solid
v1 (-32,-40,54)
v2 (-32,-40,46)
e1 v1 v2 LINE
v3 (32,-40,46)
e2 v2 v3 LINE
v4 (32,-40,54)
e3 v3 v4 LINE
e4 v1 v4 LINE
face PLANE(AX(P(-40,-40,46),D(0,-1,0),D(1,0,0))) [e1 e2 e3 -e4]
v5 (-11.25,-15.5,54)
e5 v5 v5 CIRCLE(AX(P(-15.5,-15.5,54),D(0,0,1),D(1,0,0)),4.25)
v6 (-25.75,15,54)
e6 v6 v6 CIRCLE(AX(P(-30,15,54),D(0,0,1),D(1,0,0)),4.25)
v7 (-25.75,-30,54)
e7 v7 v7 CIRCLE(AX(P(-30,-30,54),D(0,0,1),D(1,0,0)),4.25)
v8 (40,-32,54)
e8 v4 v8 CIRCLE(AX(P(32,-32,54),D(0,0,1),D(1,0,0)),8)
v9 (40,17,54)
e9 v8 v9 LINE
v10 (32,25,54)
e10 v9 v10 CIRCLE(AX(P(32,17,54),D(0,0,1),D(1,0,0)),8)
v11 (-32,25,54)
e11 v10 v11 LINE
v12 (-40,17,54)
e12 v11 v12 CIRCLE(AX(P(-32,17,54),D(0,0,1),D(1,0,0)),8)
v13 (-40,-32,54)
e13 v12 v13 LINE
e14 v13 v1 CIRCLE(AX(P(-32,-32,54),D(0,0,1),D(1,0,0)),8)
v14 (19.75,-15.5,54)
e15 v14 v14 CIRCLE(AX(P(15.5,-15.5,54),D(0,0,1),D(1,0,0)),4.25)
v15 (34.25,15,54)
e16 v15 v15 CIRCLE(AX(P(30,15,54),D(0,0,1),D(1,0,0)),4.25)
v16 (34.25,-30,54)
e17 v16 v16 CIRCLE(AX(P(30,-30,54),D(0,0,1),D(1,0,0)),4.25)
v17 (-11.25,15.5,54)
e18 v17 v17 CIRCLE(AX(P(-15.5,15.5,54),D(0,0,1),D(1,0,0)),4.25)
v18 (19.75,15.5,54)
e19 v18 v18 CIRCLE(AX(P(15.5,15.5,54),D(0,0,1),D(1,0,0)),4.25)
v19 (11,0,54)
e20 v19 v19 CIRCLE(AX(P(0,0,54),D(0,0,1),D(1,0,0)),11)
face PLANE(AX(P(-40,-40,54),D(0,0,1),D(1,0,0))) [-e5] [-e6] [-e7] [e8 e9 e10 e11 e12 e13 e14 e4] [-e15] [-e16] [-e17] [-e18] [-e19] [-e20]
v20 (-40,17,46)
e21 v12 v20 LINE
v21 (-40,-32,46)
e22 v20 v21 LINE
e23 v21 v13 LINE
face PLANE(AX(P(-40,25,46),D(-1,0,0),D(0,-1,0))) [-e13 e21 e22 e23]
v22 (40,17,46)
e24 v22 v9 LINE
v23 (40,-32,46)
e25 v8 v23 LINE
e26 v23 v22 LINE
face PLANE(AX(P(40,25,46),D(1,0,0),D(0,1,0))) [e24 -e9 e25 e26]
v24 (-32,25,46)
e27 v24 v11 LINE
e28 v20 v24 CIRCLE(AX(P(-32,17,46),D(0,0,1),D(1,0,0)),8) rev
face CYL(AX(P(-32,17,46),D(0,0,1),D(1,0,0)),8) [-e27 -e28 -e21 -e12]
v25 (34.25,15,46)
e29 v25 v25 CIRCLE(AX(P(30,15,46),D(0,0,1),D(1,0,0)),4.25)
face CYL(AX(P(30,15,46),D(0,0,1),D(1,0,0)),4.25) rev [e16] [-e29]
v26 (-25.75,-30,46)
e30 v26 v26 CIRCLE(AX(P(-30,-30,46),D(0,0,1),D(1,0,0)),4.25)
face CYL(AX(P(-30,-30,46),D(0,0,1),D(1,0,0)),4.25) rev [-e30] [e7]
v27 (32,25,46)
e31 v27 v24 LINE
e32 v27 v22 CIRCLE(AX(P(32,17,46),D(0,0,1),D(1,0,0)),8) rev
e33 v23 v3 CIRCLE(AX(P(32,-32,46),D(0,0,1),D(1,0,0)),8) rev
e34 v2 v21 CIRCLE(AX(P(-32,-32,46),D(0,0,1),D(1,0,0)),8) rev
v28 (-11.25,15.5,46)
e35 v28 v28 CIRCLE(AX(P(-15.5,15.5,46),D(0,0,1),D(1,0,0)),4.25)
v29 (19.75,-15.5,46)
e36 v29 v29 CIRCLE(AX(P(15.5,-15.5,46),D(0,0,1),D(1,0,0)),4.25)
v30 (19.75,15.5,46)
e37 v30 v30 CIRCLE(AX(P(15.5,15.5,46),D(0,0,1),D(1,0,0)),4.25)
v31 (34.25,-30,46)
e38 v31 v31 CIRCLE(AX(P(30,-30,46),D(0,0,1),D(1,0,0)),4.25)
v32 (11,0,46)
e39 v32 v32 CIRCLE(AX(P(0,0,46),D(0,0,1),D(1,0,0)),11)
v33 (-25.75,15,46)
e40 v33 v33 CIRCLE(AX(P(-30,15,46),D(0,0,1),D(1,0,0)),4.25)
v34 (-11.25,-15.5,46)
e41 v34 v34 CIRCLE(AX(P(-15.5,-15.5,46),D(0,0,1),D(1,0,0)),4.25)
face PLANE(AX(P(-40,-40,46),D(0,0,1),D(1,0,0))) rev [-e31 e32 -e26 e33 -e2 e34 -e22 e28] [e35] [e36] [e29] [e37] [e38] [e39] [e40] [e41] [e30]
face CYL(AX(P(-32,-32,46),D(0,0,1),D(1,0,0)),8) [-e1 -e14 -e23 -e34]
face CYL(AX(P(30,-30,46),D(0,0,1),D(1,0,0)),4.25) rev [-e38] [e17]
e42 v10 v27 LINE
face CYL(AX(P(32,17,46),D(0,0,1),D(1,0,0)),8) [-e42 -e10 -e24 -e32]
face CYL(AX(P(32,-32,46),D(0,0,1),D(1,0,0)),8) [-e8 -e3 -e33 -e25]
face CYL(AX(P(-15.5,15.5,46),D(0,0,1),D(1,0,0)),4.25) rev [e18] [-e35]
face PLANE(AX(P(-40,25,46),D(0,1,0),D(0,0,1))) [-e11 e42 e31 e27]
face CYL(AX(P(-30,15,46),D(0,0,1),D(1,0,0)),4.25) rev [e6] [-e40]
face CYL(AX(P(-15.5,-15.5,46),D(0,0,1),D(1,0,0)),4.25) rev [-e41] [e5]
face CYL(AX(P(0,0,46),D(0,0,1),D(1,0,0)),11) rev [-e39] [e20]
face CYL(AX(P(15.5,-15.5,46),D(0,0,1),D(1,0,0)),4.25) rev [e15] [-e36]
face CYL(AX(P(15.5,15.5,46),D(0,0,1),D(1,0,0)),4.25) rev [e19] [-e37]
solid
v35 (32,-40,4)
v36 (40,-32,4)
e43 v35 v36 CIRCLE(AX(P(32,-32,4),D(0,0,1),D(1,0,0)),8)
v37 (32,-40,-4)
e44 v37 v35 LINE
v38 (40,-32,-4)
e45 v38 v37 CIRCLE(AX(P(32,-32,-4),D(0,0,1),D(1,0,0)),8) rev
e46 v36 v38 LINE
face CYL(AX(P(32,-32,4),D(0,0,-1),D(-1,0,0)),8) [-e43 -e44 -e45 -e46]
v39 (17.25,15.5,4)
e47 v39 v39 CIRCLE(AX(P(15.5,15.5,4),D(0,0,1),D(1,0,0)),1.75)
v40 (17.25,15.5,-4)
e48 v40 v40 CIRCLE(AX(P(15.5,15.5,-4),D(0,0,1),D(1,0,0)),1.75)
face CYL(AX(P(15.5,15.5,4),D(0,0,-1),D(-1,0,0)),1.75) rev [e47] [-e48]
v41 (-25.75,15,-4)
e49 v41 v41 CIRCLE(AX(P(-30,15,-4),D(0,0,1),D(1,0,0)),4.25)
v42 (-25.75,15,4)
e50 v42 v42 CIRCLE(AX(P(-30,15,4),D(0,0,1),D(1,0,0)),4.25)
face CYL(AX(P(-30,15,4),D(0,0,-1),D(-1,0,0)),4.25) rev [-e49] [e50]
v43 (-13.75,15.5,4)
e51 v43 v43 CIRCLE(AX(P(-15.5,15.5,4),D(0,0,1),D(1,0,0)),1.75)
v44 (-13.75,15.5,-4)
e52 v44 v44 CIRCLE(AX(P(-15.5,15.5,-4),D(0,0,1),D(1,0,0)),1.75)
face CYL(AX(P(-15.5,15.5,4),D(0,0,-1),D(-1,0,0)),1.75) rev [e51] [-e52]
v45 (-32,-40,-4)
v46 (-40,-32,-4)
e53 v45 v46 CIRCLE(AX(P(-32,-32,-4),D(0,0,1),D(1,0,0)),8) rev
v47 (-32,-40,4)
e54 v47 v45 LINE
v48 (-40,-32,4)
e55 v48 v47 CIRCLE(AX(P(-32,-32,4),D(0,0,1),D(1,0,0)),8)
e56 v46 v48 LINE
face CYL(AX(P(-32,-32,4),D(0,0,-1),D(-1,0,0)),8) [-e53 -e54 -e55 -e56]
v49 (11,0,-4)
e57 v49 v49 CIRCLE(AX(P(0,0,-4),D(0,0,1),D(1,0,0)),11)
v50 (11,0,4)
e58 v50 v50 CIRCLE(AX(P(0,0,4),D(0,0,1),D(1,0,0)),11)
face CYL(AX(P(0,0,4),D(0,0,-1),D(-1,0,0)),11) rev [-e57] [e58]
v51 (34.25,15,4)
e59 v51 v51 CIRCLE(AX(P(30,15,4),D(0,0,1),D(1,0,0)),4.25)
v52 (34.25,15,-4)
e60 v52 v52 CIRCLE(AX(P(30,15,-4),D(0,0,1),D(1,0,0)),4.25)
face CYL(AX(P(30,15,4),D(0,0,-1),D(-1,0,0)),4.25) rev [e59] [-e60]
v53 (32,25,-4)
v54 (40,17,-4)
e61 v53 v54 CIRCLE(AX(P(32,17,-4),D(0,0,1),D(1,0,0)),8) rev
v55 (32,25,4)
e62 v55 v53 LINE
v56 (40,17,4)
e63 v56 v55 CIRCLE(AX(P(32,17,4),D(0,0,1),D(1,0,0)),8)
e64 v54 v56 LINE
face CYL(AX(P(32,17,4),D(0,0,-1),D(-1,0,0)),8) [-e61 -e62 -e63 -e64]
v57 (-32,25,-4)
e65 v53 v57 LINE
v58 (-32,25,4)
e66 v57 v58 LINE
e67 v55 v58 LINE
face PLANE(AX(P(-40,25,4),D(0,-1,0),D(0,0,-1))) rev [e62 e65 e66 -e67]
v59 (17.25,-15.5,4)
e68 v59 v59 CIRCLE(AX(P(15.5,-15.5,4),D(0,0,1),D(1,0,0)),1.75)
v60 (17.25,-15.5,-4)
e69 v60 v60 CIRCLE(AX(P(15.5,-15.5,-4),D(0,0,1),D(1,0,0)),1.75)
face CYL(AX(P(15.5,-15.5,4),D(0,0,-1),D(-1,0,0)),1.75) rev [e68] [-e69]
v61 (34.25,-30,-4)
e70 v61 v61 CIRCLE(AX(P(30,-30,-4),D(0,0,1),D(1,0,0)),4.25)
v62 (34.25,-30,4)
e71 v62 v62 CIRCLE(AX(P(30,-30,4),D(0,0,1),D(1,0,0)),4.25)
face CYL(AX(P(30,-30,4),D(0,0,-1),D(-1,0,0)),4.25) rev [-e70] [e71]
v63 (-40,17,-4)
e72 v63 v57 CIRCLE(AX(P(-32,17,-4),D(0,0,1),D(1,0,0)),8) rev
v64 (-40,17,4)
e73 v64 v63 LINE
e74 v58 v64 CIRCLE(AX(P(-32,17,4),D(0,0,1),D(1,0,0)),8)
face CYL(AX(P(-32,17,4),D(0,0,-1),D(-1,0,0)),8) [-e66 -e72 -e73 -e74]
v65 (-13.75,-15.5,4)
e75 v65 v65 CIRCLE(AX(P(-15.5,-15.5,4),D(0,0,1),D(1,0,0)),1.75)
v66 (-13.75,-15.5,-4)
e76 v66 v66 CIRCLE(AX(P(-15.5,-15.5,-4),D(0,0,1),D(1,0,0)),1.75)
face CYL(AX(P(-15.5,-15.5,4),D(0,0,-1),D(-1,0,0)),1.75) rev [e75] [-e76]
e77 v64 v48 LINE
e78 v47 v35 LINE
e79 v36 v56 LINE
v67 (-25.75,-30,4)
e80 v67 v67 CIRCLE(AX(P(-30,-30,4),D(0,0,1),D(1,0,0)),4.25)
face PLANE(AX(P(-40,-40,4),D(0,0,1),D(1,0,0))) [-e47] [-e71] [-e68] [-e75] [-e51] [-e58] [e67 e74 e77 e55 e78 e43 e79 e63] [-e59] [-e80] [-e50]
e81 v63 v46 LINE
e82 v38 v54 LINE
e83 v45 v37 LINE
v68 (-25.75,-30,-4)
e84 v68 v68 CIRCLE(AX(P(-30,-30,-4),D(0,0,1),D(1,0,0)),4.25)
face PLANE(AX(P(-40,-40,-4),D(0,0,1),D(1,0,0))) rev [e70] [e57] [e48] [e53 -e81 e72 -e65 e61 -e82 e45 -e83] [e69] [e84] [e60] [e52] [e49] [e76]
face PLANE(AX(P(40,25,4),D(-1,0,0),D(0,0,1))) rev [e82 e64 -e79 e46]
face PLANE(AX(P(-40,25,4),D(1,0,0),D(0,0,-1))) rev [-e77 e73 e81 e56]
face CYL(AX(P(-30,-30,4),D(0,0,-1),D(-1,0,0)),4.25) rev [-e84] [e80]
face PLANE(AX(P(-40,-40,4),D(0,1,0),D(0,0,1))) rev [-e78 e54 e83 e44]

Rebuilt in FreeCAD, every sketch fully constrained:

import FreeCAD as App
import Part
import Sketcher


def edges_at(feature, points):
    """Names of the edges that pass closest to the given points."""
    edges = feature.Shape.Edges
    near = lambda p: min(range(len(edges)), key=lambda i: edges[i].distToShape(Part.Vertex(*p))[0])
    return sorted({f"Edge{near(p) + 1}" for p in points})


def add_polygon(sketch, points):
    """Adds a closed chain of lines whose ends are joined by coincident constraints."""
    first, n = sketch.GeometryCount, len(points)
    for a, b in zip(points, points[1:] + points[:1]):
        sketch.addGeometry(Part.LineSegment(App.Vector(*a, 0), App.Vector(*b, 0)), False)
    for i in range(n):
        sketch.addConstraint(Sketcher.Constraint("Coincident", first + i, 2, first + (i + 1) % n, 1))

doc = App.newDocument("Part")
body = doc.addObject("PartDesign::Body", "Body")

# Sketch on XY plane
sketch1 = body.newObject("Sketcher::SketchObject", "Sketch")
sketch1.AttachmentSupport = (doc.getObject("XY_Plane"), [""])
sketch1.MapMode = "FlatFace"
add_polygon(sketch1, [(-40, 25), (-40, -40), (40, -40), (40, 25)])  # lines 0-3
sketch1.addGeometry(Part.Circle(App.Vector(-30, -30, 0), App.Vector(0, 0, 1), 4.2), False)  # 4
sketch1.addGeometry(Part.Circle(App.Vector(-15.5, -15.5, 0), App.Vector(0, 0, 1), 1.8), False)  # 5
sketch1.addGeometry(Part.Circle(App.Vector(30, -30, 0), App.Vector(0, 0, 1), 4.2), False)  # 6
sketch1.addGeometry(Part.Circle(App.Vector(15.5, -15.5, 0), App.Vector(0, 0, 1), 1.8), False)  # 7
sketch1.addGeometry(Part.Circle(App.Vector(-30, 15, 0), App.Vector(0, 0, 1), 4.2), False)  # 8
sketch1.addGeometry(Part.Circle(App.Vector(-15.5, 15.5, 0), App.Vector(0, 0, 1), 1.8), False)  # 9
sketch1.addGeometry(Part.Circle(App.Vector(0, 0, 0), App.Vector(0, 0, 1), 11), False)  # 10
sketch1.addGeometry(Part.Circle(App.Vector(15.5, 15.5, 0), App.Vector(0, 0, 1), 1.8), False)  # 11
sketch1.addGeometry(Part.Circle(App.Vector(30, 15, 0), App.Vector(0, 0, 1), 4.2), False)  # 12
sketch1.addConstraint([
    Sketcher.Constraint("Vertical", 0),
    Sketcher.Constraint("Horizontal", 1),
    Sketcher.Constraint("Vertical", 2),
    Sketcher.Constraint("Horizontal", 3),
    Sketcher.Constraint("Coincident", 10, 3, -1, 1),
    Sketcher.Constraint("Equal", 4, 6),
    Sketcher.Constraint("Equal", 5, 7),
    Sketcher.Constraint("Equal", 6, 8),
    Sketcher.Constraint("Equal", 7, 9),
    Sketcher.Constraint("Equal", 9, 11),
    Sketcher.Constraint("Equal", 8, 12),
    Sketcher.Constraint("Symmetric", 7, 3, 9, 3, -1, 1),
    Sketcher.Constraint("Symmetric", 5, 3, 11, 3, -1, 1),
    Sketcher.Constraint("Symmetric", 4, 3, 6, 3, -2),
    Sketcher.Constraint("Symmetric", 5, 3, 7, 3, -2),
    Sketcher.Constraint("Symmetric", 8, 3, 12, 3, -2),
    Sketcher.Constraint("Vertical", 4, 3, 8, 3),
    Sketcher.Constraint("Diameter", 10, 22.0),
    Sketcher.Constraint("Diameter", 4, 8.5),
    Sketcher.Constraint("Diameter", 5, 3.5),
    Sketcher.Constraint("DistanceX", 1, 1, 1, 2, 80.0),
    Sketcher.Constraint("DistanceY", 0, 2, 0, 1, 65.0),
    Sketcher.Constraint("DistanceX", 4, 3, -1, 1, 30.0),
    Sketcher.Constraint("DistanceY", 4, 3, -1, 1, 30.0),
    Sketcher.Constraint("DistanceY", -1, 1, 8, 3, 15.0),
    Sketcher.Constraint("DistanceX", 0, 2, -1, 1, 40.0),
    Sketcher.Constraint("DistanceY", 0, 2, -1, 1, 40.0),
    Sketcher.Constraint("DistanceX", 5, 3, 7, 3, 31.0),
    Sketcher.Constraint("DistanceY", 5, 3, 9, 3, 31.0),
])
pad1 = body.newObject("PartDesign::Pad", "Pad")
pad1.Profile = sketch1
pad1.Length = 8
pad1.Midplane = True
doc.recompute()

fillet = body.newObject("PartDesign::Fillet", "Fillet")
fillet.Base = (pad1, edges_at(pad1, [
    (-40, 25, 0),
    (40, 25, 0),
    (40, -40, 0),
    (-40, -40, 0),
]))
fillet.Radius = 8
body2 = doc.addObject("PartDesign::Body", "Body001")

# Sketch on XY plane
sketch2 = body2.newObject("Sketcher::SketchObject", "Sketch001")
sketch2.AttachmentSupport = (doc.getObject("XY_Plane001"), [""])
sketch2.MapMode = "FlatFace"
sketch2.AttachmentOffset = App.Placement(App.Vector(0, 0, 50), App.Rotation())
add_polygon(sketch2, [(-40, 25), (-40, -40), (40, -40), (40, 25)])  # lines 0-3
sketch2.addGeometry(Part.Circle(App.Vector(-30, -30, 0), App.Vector(0, 0, 1), 4.2), False)  # 4
sketch2.addGeometry(Part.Circle(App.Vector(-15.5, -15.5, 0), App.Vector(0, 0, 1), 4.2), False)  # 5
sketch2.addGeometry(Part.Circle(App.Vector(30, -30, 0), App.Vector(0, 0, 1), 4.2), False)  # 6
sketch2.addGeometry(Part.Circle(App.Vector(15.5, -15.5, 0), App.Vector(0, 0, 1), 4.2), False)  # 7
sketch2.addGeometry(Part.Circle(App.Vector(-30, 15, 0), App.Vector(0, 0, 1), 4.2), False)  # 8
sketch2.addGeometry(Part.Circle(App.Vector(-15.5, 15.5, 0), App.Vector(0, 0, 1), 4.2), False)  # 9
sketch2.addGeometry(Part.Circle(App.Vector(0, 0, 0), App.Vector(0, 0, 1), 11), False)  # 10
sketch2.addGeometry(Part.Circle(App.Vector(15.5, 15.5, 0), App.Vector(0, 0, 1), 4.2), False)  # 11
sketch2.addGeometry(Part.Circle(App.Vector(30, 15, 0), App.Vector(0, 0, 1), 4.2), False)  # 12
sketch2.addConstraint([
    Sketcher.Constraint("Vertical", 0),
    Sketcher.Constraint("Horizontal", 1),
    Sketcher.Constraint("Vertical", 2),
    Sketcher.Constraint("Horizontal", 3),
    Sketcher.Constraint("Coincident", 10, 3, -1, 1),
    Sketcher.Constraint("Equal", 4, 5),
    Sketcher.Constraint("Equal", 5, 6),
    Sketcher.Constraint("Equal", 6, 7),
    Sketcher.Constraint("Equal", 7, 8),
    Sketcher.Constraint("Equal", 8, 9),
    Sketcher.Constraint("Equal", 9, 11),
    Sketcher.Constraint("Equal", 11, 12),
    Sketcher.Constraint("Symmetric", 7, 3, 9, 3, -1, 1),
    Sketcher.Constraint("Symmetric", 5, 3, 11, 3, -1, 1),
    Sketcher.Constraint("Symmetric", 4, 3, 6, 3, -2),
    Sketcher.Constraint("Symmetric", 5, 3, 7, 3, -2),
    Sketcher.Constraint("Symmetric", 8, 3, 12, 3, -2),
    Sketcher.Constraint("Vertical", 4, 3, 8, 3),
    Sketcher.Constraint("Diameter", 10, 22.0),
    Sketcher.Constraint("Diameter", 4, 8.5),
    Sketcher.Constraint("DistanceX", 1, 1, 1, 2, 80.0),
    Sketcher.Constraint("DistanceY", 0, 2, 0, 1, 65.0),
    Sketcher.Constraint("DistanceX", 4, 3, -1, 1, 30.0),
    Sketcher.Constraint("DistanceY", 4, 3, -1, 1, 30.0),
    Sketcher.Constraint("DistanceY", -1, 1, 8, 3, 15.0),
    Sketcher.Constraint("DistanceX", 0, 2, -1, 1, 40.0),
    Sketcher.Constraint("DistanceY", 0, 2, -1, 1, 40.0),
    Sketcher.Constraint("DistanceX", 5, 3, 7, 3, 31.0),
    Sketcher.Constraint("DistanceY", 5, 3, 9, 3, 31.0),
])
pad2 = body2.newObject("PartDesign::Pad", "Pad001")
pad2.Profile = sketch2
pad2.Length = 8
pad2.Midplane = True
doc.recompute()

fillet2 = body2.newObject("PartDesign::Fillet", "Fillet001")
fillet2.Base = (pad2, edges_at(pad2, [
    (-40, 25, 50),
    (40, 25, 50),
    (40, -40, 50),
    (-40, -40, 50),
]))
fillet2.Radius = 8

doc.recompute()
